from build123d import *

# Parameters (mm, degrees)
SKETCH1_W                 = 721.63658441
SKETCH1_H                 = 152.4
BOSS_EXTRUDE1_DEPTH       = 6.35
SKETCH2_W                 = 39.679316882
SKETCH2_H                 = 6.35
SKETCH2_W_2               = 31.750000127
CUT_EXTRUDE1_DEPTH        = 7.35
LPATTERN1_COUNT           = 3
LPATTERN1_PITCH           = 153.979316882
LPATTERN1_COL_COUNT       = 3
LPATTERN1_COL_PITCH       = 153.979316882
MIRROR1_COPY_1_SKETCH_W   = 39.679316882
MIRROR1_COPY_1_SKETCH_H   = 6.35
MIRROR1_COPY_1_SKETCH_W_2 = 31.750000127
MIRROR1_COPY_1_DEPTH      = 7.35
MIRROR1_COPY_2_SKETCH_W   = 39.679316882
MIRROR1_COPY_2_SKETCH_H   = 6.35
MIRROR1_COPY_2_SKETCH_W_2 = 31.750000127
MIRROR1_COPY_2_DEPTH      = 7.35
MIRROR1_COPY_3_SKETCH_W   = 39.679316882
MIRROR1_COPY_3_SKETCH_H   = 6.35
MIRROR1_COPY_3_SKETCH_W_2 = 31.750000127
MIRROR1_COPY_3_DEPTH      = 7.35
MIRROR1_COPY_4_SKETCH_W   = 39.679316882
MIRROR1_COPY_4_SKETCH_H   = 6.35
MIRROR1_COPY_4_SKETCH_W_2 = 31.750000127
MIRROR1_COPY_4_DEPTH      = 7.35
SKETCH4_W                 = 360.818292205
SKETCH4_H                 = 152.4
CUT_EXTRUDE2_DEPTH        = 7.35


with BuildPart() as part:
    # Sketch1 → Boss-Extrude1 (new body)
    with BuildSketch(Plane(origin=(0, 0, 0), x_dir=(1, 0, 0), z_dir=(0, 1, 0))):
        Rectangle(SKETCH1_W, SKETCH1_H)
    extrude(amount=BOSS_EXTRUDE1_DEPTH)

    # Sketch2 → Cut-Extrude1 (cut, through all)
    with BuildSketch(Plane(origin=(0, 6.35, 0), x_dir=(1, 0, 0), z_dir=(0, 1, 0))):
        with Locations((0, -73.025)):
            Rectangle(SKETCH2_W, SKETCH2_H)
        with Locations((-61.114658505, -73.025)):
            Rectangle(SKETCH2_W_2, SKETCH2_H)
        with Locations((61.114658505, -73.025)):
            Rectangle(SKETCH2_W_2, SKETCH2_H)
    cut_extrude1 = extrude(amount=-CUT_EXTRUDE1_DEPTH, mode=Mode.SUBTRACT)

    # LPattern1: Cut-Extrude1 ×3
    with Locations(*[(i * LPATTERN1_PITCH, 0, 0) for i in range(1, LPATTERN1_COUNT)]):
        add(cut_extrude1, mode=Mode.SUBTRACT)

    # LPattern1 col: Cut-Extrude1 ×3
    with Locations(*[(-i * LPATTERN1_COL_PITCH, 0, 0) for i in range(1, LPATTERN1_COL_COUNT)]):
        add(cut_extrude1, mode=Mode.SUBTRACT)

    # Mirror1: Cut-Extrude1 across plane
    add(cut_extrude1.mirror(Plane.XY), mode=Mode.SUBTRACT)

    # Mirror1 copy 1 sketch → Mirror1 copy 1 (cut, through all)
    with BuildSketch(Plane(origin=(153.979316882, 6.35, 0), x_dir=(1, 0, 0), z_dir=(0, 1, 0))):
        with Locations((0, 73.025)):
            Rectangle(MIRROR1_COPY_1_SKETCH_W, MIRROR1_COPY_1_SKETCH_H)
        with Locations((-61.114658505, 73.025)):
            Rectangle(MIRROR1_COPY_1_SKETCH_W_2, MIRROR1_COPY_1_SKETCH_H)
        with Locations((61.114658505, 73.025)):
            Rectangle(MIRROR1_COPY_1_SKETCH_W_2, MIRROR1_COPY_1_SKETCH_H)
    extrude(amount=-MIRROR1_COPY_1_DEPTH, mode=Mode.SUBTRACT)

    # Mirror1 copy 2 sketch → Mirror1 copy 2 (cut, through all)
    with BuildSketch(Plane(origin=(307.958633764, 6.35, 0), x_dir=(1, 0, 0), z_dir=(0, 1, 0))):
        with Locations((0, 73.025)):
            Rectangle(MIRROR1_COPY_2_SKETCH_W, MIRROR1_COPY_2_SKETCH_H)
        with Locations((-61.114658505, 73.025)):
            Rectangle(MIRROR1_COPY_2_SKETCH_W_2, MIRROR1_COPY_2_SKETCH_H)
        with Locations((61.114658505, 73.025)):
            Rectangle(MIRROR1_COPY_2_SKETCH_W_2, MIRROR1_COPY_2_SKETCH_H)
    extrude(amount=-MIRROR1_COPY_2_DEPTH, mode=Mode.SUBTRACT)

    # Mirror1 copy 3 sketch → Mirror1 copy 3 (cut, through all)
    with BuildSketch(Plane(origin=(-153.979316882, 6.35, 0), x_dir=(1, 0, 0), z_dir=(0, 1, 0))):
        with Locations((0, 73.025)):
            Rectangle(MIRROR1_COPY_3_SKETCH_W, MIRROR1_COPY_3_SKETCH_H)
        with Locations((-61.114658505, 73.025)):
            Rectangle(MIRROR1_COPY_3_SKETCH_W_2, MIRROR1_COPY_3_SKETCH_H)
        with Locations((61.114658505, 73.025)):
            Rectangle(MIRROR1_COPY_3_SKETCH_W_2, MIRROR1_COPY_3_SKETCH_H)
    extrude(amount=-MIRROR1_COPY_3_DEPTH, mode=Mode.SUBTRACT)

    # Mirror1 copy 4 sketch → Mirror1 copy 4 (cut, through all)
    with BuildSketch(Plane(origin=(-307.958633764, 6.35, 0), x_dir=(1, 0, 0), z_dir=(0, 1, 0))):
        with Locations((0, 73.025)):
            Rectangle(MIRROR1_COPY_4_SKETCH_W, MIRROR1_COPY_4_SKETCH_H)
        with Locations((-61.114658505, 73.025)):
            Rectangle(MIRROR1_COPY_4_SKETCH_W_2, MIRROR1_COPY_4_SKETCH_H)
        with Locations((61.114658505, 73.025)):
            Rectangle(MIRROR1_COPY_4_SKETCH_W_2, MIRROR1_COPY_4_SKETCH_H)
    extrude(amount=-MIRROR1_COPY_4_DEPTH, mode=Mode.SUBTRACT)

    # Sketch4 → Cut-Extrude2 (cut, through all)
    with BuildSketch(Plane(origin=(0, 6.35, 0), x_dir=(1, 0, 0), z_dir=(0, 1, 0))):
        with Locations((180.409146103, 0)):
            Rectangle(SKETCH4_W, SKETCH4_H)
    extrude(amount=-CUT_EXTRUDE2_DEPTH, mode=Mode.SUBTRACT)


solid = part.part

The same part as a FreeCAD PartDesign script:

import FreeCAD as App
import Part
import Sketcher
from FreeCAD import Vector
Q = App.Units.Quantity

doc = App.newDocument("Part")
body = doc.addObject("PartDesign::Body", "Body")

# Sketch on XZ plane
sketch1 = body.newObject("Sketcher::SketchObject", "Sketch")
sketch1.AttachmentSupport = (doc.getObject("XZ_Plane"), [""])
sketch1.MapMode = "FlatFace"
sketch1.addGeometry([
    Part.LineSegment(Vector(-360.818292, -76.2, 0), Vector(-360.818292, 76.2, 0)),
    Part.LineSegment(Vector(-360.818292, 76.2, 0), Vector(360.818292, 76.2, 0)),
    Part.LineSegment(Vector(360.818292, 76.2, 0), Vector(360.818292, -76.2, 0)),
    Part.LineSegment(Vector(360.818292, -76.2, 0), Vector(-360.818292, -76.2, 0)),
], False)
sketch1.addConstraint([
    Sketcher.Constraint("Coincident", 0, 2, 1, 1),
    Sketcher.Constraint("Coincident", 1, 2, 2, 1),
    Sketcher.Constraint("Coincident", 2, 2, 3, 1),
    Sketcher.Constraint("Coincident", 3, 2, 0, 1),
    Sketcher.Constraint("Vertical", 0),
    Sketcher.Constraint("Horizontal", 1),
    Sketcher.Constraint("Vertical", 2),
    Sketcher.Constraint("Horizontal", 3),
    Sketcher.Constraint("Symmetric", 0, 2, 2, 2, -1, 1),
    Sketcher.Constraint("DistanceY", 0, 1, 0, 2, Q("6 in")),
    Sketcher.Constraint("DistanceX", 1, 1, 1, 2, 721.636584),
])
pad1 = body.newObject("PartDesign::Pad", "Pad")
pad1.Profile = sketch1
pad1.Length = Q("0.25 in")
pad1.Reversed = True

# Sketch on XZ plane
sketch2 = body.newObject("Sketcher::SketchObject", "Sketch001")
sketch2.AttachmentSupport = (doc.getObject("XZ_Plane"), [""])
sketch2.MapMode = "FlatFace"
sketch2.AttachmentOffset = App.Placement(Vector(0, 0, -0.25 * 25.4), App.Rotation())
sketch2.addGeometry([
    Part.LineSegment(Vector(-19.839658, 69.85, 0), Vector(-19.839658, 76.2, 0)),  # 0
    Part.LineSegment(Vector(-19.839658, 76.2, 0), Vector(19.839658, 76.2, 0)),  # 1
    Part.LineSegment(Vector(19.839658, 76.2, 0), Vector(19.839658, 69.85, 0)),  # 2
    Part.LineSegment(Vector(19.839658, 69.85, 0), Vector(-19.839658, 69.85, 0)),  # 3
    Part.LineSegment(Vector(-76.989659, 69.85, 0), Vector(-76.989659, 76.2, 0)),  # 4
    Part.LineSegment(Vector(-76.989659, 76.2, 0), Vector(-45.239658, 76.2, 0)),  # 5
    Part.LineSegment(Vector(-45.239658, 76.2, 0), Vector(-45.239658, 69.85, 0)),  # 6
    Part.LineSegment(Vector(-45.239658, 69.85, 0), Vector(-76.989659, 69.85, 0)),  # 7
    Part.LineSegment(Vector(45.239658, 69.85, 0), Vector(45.239658, 76.2, 0)),  # 8
    Part.LineSegment(Vector(45.239658, 76.2, 0), Vector(76.989659, 76.2, 0)),  # 9
    Part.LineSegment(Vector(76.989659, 76.2, 0), Vector(76.989659, 69.85, 0)),  # 10
    Part.LineSegment(Vector(76.989659, 69.85, 0), Vector(45.239658, 69.85, 0)),  # 11
], False)
sketch2.addConstraint([
    Sketcher.Constraint("Coincident", 0, 2, 1, 1),
    Sketcher.Constraint("Coincident", 1, 2, 2, 1),
    Sketcher.Constraint("Coincident", 2, 2, 3, 1),
    Sketcher.Constraint("Coincident", 3, 2, 0, 1),
    Sketcher.Constraint("Coincident", 4, 2, 5, 1),
    Sketcher.Constraint("Coincident", 5, 2, 6, 1),
    Sketcher.Constraint("Coincident", 6, 2, 7, 1),
    Sketcher.Constraint("Coincident", 7, 2, 4, 1),
    Sketcher.Constraint("Coincident", 8, 2, 9, 1),
    Sketcher.Constraint("Coincident", 9, 2, 10, 1),
    Sketcher.Constraint("Coincident", 10, 2, 11, 1),
    Sketcher.Constraint("Coincident", 11, 2, 8, 1),
    Sketcher.Constraint("Vertical", 0),
    Sketcher.Constraint("Horizontal", 1),
    Sketcher.Constraint("Vertical", 2),
    Sketcher.Constraint("Horizontal", 3),
    Sketcher.Constraint("Vertical", 4),
    Sketcher.Constraint("Horizontal", 5),
    Sketcher.Constraint("Vertical", 6),
    Sketcher.Constraint("Horizontal", 7),
    Sketcher.Constraint("Vertical", 8),
    Sketcher.Constraint("Horizontal", 9),
    Sketcher.Constraint("Vertical", 10),
    Sketcher.Constraint("Horizontal", 11),
    Sketcher.Constraint("Symmetric", 5, 2, 8, 2, -2),
    Sketcher.Constraint("Symmetric", 7, 2, 10, 2, -2),
    Sketcher.Constraint("Horizontal", 1, 2, 4, 2),
    Sketcher.Constraint("Horizontal", 3, 2, 6, 2),
    Sketcher.Constraint("DistanceY", -1, 1, 0, 2, Q("3 in")),
    Sketcher.Constraint("DistanceX", 5, 2, 0, 2, Q("1 in")),
    Sketcher.Constraint("DistanceX", 1, 2, 8, 2, Q("1 in")),
    Sketcher.Constraint("DistanceX", 5, 1, 5, 2, Q("1.25 in")),
    Sketcher.Constraint("DistanceY", 0, 1, 0, 2, Q("0.25 in")),
    Sketcher.Constraint("DistanceX", 1, 1, 1, 2, 39.679317),
])
pocket1 = body.newObject("PartDesign::Pocket", "Pocket")
pocket1.Profile = sketch2
pocket1.Type = "ThroughAll"
pocket1.Reversed = True
doc.recompute()

linearpattern = body.newObject("PartDesign::LinearPattern", "LinearPattern")
linearpattern.Originals = [pocket1]
linearpattern.Direction = (doc.getObject("X_Axis"), [""])
linearpattern.Mode = "offset"
linearpattern.Offset = 153.979317
linearpattern.Occurrences = 3
body.Tip = linearpattern
doc.recompute()

linearpattern2 = body.newObject("PartDesign::LinearPattern", "LinearPattern001")
linearpattern2.Originals = [pocket1]
linearpattern2.Direction = (doc.getObject("X_Axis"), [""])
linearpattern2.Mode = "offset"
linearpattern2.Offset = 153.979317
linearpattern2.Occurrences = 3
linearpattern2.Reversed = True
body.Tip = linearpattern2
doc.recompute()

mirrored = body.newObject("PartDesign::Mirrored", "Mirrored")
mirrored.Originals = [pocket1]
mirrored.MirrorPlane = (doc.getObject("XY_Plane"), [""])
body.Tip = mirrored

# Sketch on XZ plane
sketch3 = body.newObject("Sketcher::SketchObject", "Sketch002")
sketch3.AttachmentSupport = (doc.getObject("XZ_Plane"), [""])
sketch3.MapMode = "FlatFace"
sketch3.AttachmentOffset = App.Placement(Vector(0, 0, -0.25 * 25.4), App.Rotation())
sketch3.addGeometry([
    Part.LineSegment(Vector(134.139658, -76.2, 0), Vector(134.139658, -69.85, 0)),  # 0
    Part.LineSegment(Vector(134.139658, -69.85, 0), Vector(173.818975, -69.85, 0)),  # 1
    Part.LineSegment(Vector(173.818975, -69.85, 0), Vector(173.818975, -76.2, 0)),  # 2
    Part.LineSegment(Vector(173.818975, -76.2, 0), Vector(134.139658, -76.2, 0)),  # 3
    Part.LineSegment(Vector(76.989658, -76.2, 0), Vector(76.989658, -69.85, 0)),  # 4
    Part.LineSegment(Vector(76.989658, -69.85, 0), Vector(108.739658, -69.85, 0)),  # 5
    Part.LineSegment(Vector(108.739658, -69.85, 0), Vector(108.739658, -76.2, 0)),  # 6
    Part.LineSegment(Vector(108.739658, -76.2, 0), Vector(76.989658, -76.2, 0)),  # 7
    Part.LineSegment(Vector(199.218975, -76.2, 0), Vector(199.218975, -69.85, 0)),  # 8
    Part.LineSegment(Vector(199.218975, -69.85, 0), Vector(230.968975, -69.85, 0)),  # 9
    Part.LineSegment(Vector(230.968975, -69.85, 0), Vector(230.968975, -76.2, 0)),  # 10
    Part.LineSegment(Vector(230.968975, -76.2, 0), Vector(199.218975, -76.2, 0)),  # 11
], False)
sketch3.addConstraint([
    Sketcher.Constraint("Coincident", 0, 2, 1, 1),
    Sketcher.Constraint("Coincident", 1, 2, 2, 1),
    Sketcher.Constraint("Coincident", 2, 2, 3, 1),
    Sketcher.Constraint("Coincident", 3, 2, 0, 1),
    Sketcher.Constraint("Coincident", 4, 2, 5, 1),
    Sketcher.Constraint("Coincident", 5, 2, 6, 1),
    Sketcher.Constraint("Coincident", 6, 2, 7, 1),
    Sketcher.Constraint("Coincident", 7, 2, 4, 1),
    Sketcher.Constraint("Coincident", 8, 2, 9, 1),
    Sketcher.Constraint("Coincident", 9, 2, 10, 1),
    Sketcher.Constraint("Coincident", 10, 2, 11, 1),
    Sketcher.Constraint("Coincident", 11, 2, 8, 1),
    Sketcher.Constraint("Vertical", 0),
    Sketcher.Constraint("Horizontal", 1),
    Sketcher.Constraint("Vertical", 2),
    Sketcher.Constraint("Horizontal", 3),
    Sketcher.Constraint("Vertical", 4),
    Sketcher.Constraint("Horizontal", 5),
    Sketcher.Constraint("Vertical", 6),
    Sketcher.Constraint("Horizontal", 7),
    Sketcher.Constraint("Vertical", 8),
    Sketcher.Constraint("Horizontal", 9),
    Sketcher.Constraint("Vertical", 10),
    Sketcher.Constraint("Horizontal", 11),
    Sketcher.Constraint("Horizontal", 1, 2, 4, 2),
    Sketcher.Constraint("Horizontal", 3, 2, 6, 2),
    Sketcher.Constraint("Horizontal", 5, 2, 8, 2),
    Sketcher.Constraint("Horizontal", 7, 2, 10, 2),
    Sketcher.Constraint("Equal", 7, 9),
    Sketcher.Constraint("DistanceY", 2, 2, -1, 1, Q("3 in")),
    Sketcher.Constraint("DistanceX", 5, 2, 0, 2, Q("1 in")),
    Sketcher.Constraint("DistanceX", 1, 2, 8, 2, Q("1 in")),
    Sketcher.Constraint("DistanceX", 5, 1, 5, 2, Q("1.25 in")),
    Sketcher.Constraint("DistanceY", 0, 1, 0, 2, Q("0.25 in")),
    Sketcher.Constraint("DistanceX", 1, 1, 1, 2, 39.679317),
    Sketcher.Constraint("DistanceX", -1, 1, 0, 2, 134.139658),
])
pocket2 = body.newObject("PartDesign::Pocket", "Pocket001")
pocket2.Profile = sketch3
pocket2.Type = "ThroughAll"
pocket2.Reversed = True

# Sketch on XZ plane
sketch4 = body.newObject("Sketcher::SketchObject", "Sketch003")
sketch4.AttachmentSupport = (doc.getObject("XZ_Plane"), [""])
sketch4.MapMode = "FlatFace"
sketch4.AttachmentOffset = App.Placement(Vector(0, 0, -0.25 * 25.4), App.Rotation())
sketch4.addGeometry([
    Part.LineSegment(Vector(288.118975, -76.2, 0), Vector(288.118975, -69.85, 0)),  # 0
    Part.LineSegment(Vector(288.118975, -69.85, 0), Vector(327.798292, -69.85, 0)),  # 1
    Part.LineSegment(Vector(327.798292, -69.85, 0), Vector(327.798292, -76.2, 0)),  # 2
    Part.LineSegment(Vector(327.798292, -76.2, 0), Vector(288.118975, -76.2, 0)),  # 3
    Part.LineSegment(Vector(230.968975, -76.2, 0), Vector(230.968975, -69.85, 0)),  # 4
    Part.LineSegment(Vector(230.968975, -69.85, 0), Vector(262.718975, -69.85, 0)),  # 5
    Part.LineSegment(Vector(262.718975, -69.85, 0), Vector(262.718975, -76.2, 0)),  # 6
    Part.LineSegment(Vector(262.718975, -76.2, 0), Vector(230.968975, -76.2, 0)),  # 7
    Part.LineSegment(Vector(353.198292, -76.2, 0), Vector(353.198292, -69.85, 0)),  # 8
    Part.LineSegment(Vector(353.198292, -69.85, 0), Vector(384.948292, -69.85, 0)),  # 9
    Part.LineSegment(Vector(384.948292, -69.85, 0), Vector(384.948292, -76.2, 0)),  # 10
    Part.LineSegment(Vector(384.948292, -76.2, 0), Vector(353.198292, -76.2, 0)),  # 11
], False)
sketch4.addConstraint([
    Sketcher.Constraint("Coincident", 0, 2, 1, 1),
    Sketcher.Constraint("Coincident", 1, 2, 2, 1),
    Sketcher.Constraint("Coincident", 2, 2, 3, 1),
    Sketcher.Constraint("Coincident", 3, 2, 0, 1),
    Sketcher.Constraint("Coincident", 4, 2, 5, 1),
    Sketcher.Constraint("Coincident", 5, 2, 6, 1),
    Sketcher.Constraint("Coincident", 6, 2, 7, 1),
    Sketcher.Constraint("Coincident", 7, 2, 4, 1),
    Sketcher.Constraint("Coincident", 8, 2, 9, 1),
    Sketcher.Constraint("Coincident", 9, 2, 10, 1),
    Sketcher.Constraint("Coincident", 10, 2, 11, 1),
    Sketcher.Constraint("Coincident", 11, 2, 8, 1),
    Sketcher.Constraint("Vertical", 0),
    Sketcher.Constraint("Horizontal", 1),
    Sketcher.Constraint("Vertical", 2),
    Sketcher.Constraint("Horizontal", 3),
    Sketcher.Constraint("Vertical", 4),
    Sketcher.Constraint("Horizontal", 5),
    Sketcher.Constraint("Vertical", 6),
    Sketcher.Constraint("Horizontal", 7),
    Sketcher.Constraint("Vertical", 8),
    Sketcher.Constraint("Horizontal", 9),
    Sketcher.Constraint("Vertical", 10),
    Sketcher.Constraint("Horizontal", 11),
    Sketcher.Constraint("Horizontal", 1, 2, 4, 2),
    Sketcher.Constraint("Horizontal", 3, 2, 6, 2),
    Sketcher.Constraint("Horizontal", 5, 2, 8, 2),
    Sketcher.Constraint("Horizontal", 7, 2, 10, 2),
    Sketcher.Constraint("Equal", 7, 9),
    Sketcher.Constraint("DistanceY", 2, 2, -1, 1, Q("3 in")),
    Sketcher.Constraint("DistanceX", 5, 2, 0, 2, Q("1 in")),
    Sketcher.Constraint("DistanceX", 1, 2, 8, 2, Q("1 in")),
    Sketcher.Constraint("DistanceX", 5, 1, 5, 2, Q("1.25 in")),
    Sketcher.Constraint("DistanceY", 0, 1, 0, 2, Q("0.25 in")),
    Sketcher.Constraint("DistanceX", 1, 1, 1, 2, 39.679317),
    Sketcher.Constraint("DistanceX", -1, 1, 0, 2, 288.118975),
])
pocket3 = body.newObject("PartDesign::Pocket", "Pocket002")
pocket3.Profile = sketch4
pocket3.Type = "ThroughAll"
pocket3.Reversed = True

# Sketch on XZ plane
sketch5 = body.newObject("Sketcher::SketchObject", "Sketch004")
sketch5.AttachmentSupport = (doc.getObject("XZ_Plane"), [""])
sketch5.MapMode = "FlatFace"
sketch5.AttachmentOffset = App.Placement(Vector(0, 0, -0.25 * 25.4), App.Rotation())
sketch5.addGeometry([
    Part.LineSegment(Vector(-173.818975, -76.2, 0), Vector(-173.818975, -69.85, 0)),  # 0
    Part.LineSegment(Vector(-173.818975, -69.85, 0), Vector(-134.139658, -69.85, 0)),  # 1
    Part.LineSegment(Vector(-134.139658, -69.85, 0), Vector(-134.139658, -76.2, 0)),  # 2
    Part.LineSegment(Vector(-134.139658, -76.2, 0), Vector(-173.818975, -76.2, 0)),  # 3
    Part.LineSegment(Vector(-230.968975, -76.2, 0), Vector(-230.968975, -69.85, 0)),  # 4
    Part.LineSegment(Vector(-230.968975, -69.85, 0), Vector(-199.218975, -69.85, 0)),  # 5
    Part.LineSegment(Vector(-199.218975, -69.85, 0), Vector(-199.218975, -76.2, 0)),  # 6
    Part.LineSegment(Vector(-199.218975, -76.2, 0), Vector(-230.968975, -76.2, 0)),  # 7
    Part.LineSegment(Vector(-108.739658, -76.2, 0), Vector(-108.739658, -69.85, 0)),  # 8
    Part.LineSegment(Vector(-108.739658, -69.85, 0), Vector(-76.989658, -69.85, 0)),  # 9
    Part.LineSegment(Vector(-76.989658, -69.85, 0), Vector(-76.989658, -76.2, 0)),  # 10
    Part.LineSegment(Vector(-76.989658, -76.2, 0), Vector(-108.739658, -76.2, 0)),  # 11
], False)
sketch5.addConstraint([
    Sketcher.Constraint("Coincident", 0, 2, 1, 1),
    Sketcher.Constraint("Coincident", 1, 2, 2, 1),
    Sketcher.Constraint("Coincident", 2, 2, 3, 1),
    Sketcher.Constraint("Coincident", 3, 2, 0, 1),
    Sketcher.Constraint("Coincident", 4, 2, 5, 1),
    Sketcher.Constraint("Coincident", 5, 2, 6, 1),
    Sketcher.Constraint("Coincident", 6, 2, 7, 1),
    Sketcher.Constraint("Coincident", 7, 2, 4, 1),
    Sketcher.Constraint("Coincident", 8, 2, 9, 1),
    Sketcher.Constraint("Coincident", 9, 2, 10, 1),
    Sketcher.Constraint("Coincident", 10, 2, 11, 1),
    Sketcher.Constraint("Coincident", 11, 2, 8, 1),
    Sketcher.Constraint("Vertical", 0),
    Sketcher.Constraint("Horizontal", 1),
    Sketcher.Constraint("Vertical", 2),
    Sketcher.Constraint("Horizontal", 3),
    Sketcher.Constraint("Vertical", 4),
    Sketcher.Constraint("Horizontal", 5),
    Sketcher.Constraint("Vertical", 6),
    Sketcher.Constraint("Horizontal", 7),
    Sketcher.Constraint("Vertical", 8),
    Sketcher.Constraint("Horizontal", 9),
    Sketcher.Constraint("Vertical", 10),
    Sketcher.Constraint("Horizontal", 11),
    Sketcher.Constraint("Horizontal", 1, 2, 4, 2),
    Sketcher.Constraint("Horizontal", 3, 2, 6, 2),
    Sketcher.Constraint("Horizontal", 5, 2, 8, 2),
    Sketcher.Constraint("Horizontal", 7, 2, 10, 2),
    Sketcher.Constraint("Equal", 7, 9),
    Sketcher.Constraint("DistanceY", 2, 2, -1, 1, Q("3 in")),
    Sketcher.Constraint("DistanceX", 5, 2, 0, 2, Q("1 in")),
    Sketcher.Constraint("DistanceX", 1, 2, 8, 2, Q("1 in")),
    Sketcher.Constraint("DistanceX", 5, 1, 5, 2, Q("1.25 in")),
    Sketcher.Constraint("DistanceY", 0, 1, 0, 2, Q("0.25 in")),
    Sketcher.Constraint("DistanceX", 1, 1, 1, 2, 39.679317),
    Sketcher.Constraint("DistanceX", 1, 2, -1, 1, 134.139658),
])
pocket4 = body.newObject("PartDesign::Pocket", "Pocket003")
pocket4.Profile = sketch5
pocket4.Type = "ThroughAll"
pocket4.Reversed = True

# Sketch on XZ plane
sketch6 = body.newObject("Sketcher::SketchObject", "Sketch005")
sketch6.AttachmentSupport = (doc.getObject("XZ_Plane"), [""])
sketch6.MapMode = "FlatFace"
sketch6.AttachmentOffset = App.Placement(Vector(0, 0, -0.25 * 25.4), App.Rotation())
sketch6.addGeometry([
    Part.LineSegment(Vector(-327.798292, -76.2, 0), Vector(-327.798292, -69.85, 0)),  # 0
    Part.LineSegment(Vector(-327.798292, -69.85, 0), Vector(-288.118975, -69.85, 0)),  # 1
    Part.LineSegment(Vector(-288.118975, -69.85, 0), Vector(-288.118975, -76.2, 0)),  # 2
    Part.LineSegment(Vector(-288.118975, -76.2, 0), Vector(-327.798292, -76.2, 0)),  # 3
    Part.LineSegment(Vector(-384.948292, -76.2, 0), Vector(-384.948292, -69.85, 0)),  # 4
    Part.LineSegment(Vector(-384.948292, -69.85, 0), Vector(-353.198292, -69.85, 0)),  # 5
    Part.LineSegment(Vector(-353.198292, -69.85, 0), Vector(-353.198292, -76.2, 0)),  # 6
    Part.LineSegment(Vector(-353.198292, -76.2, 0), Vector(-384.948292, -76.2, 0)),  # 7
    Part.LineSegment(Vector(-262.718975, -76.2, 0), Vector(-262.718975, -69.85, 0)),  # 8
    Part.LineSegment(Vector(-262.718975, -69.85, 0), Vector(-230.968975, -69.85, 0)),  # 9
    Part.LineSegment(Vector(-230.968975, -69.85, 0), Vector(-230.968975, -76.2, 0)),  # 10
    Part.LineSegment(Vector(-230.968975, -76.2, 0), Vector(-262.718975, -76.2, 0)),  # 11
], False)
sketch6.addConstraint([
    Sketcher.Constraint("Coincident", 0, 2, 1, 1),
    Sketcher.Constraint("Coincident", 1, 2, 2, 1),
    Sketcher.Constraint("Coincident", 2, 2, 3, 1),
    Sketcher.Constraint("Coincident", 3, 2, 0, 1),
    Sketcher.Constraint("Coincident", 4, 2, 5, 1),
    Sketcher.Constraint("Coincident", 5, 2, 6, 1),
    Sketcher.Constraint("Coincident", 6, 2, 7, 1),
    Sketcher.Constraint("Coincident", 7, 2, 4, 1),
    Sketcher.Constraint("Coincident", 8, 2, 9, 1),
    Sketcher.Constraint("Coincident", 9, 2, 10, 1),
    Sketcher.Constraint("Coincident", 10, 2, 11, 1),
    Sketcher.Constraint("Coincident", 11, 2, 8, 1),
    Sketcher.Constraint("Vertical", 0),
    Sketcher.Constraint("Horizontal", 1),
    Sketcher.Constraint("Vertical", 2),
    Sketcher.Constraint("Horizontal", 3),
    Sketcher.Constraint("Vertical", 4),
    Sketcher.Constraint("Horizontal", 5),
    Sketcher.Constraint("Vertical", 6),
    Sketcher.Constraint("Horizontal", 7),
    Sketcher.Constraint("Vertical", 8),
    Sketcher.Constraint("Horizontal", 9),
    Sketcher.Constraint("Vertical", 10),
    Sketcher.Constraint("Horizontal", 11),
    Sketcher.Constraint("Horizontal", 1, 2, 4, 2),
    Sketcher.Constraint("Horizontal", 3, 2, 6, 2),
    Sketcher.Constraint("Horizontal", 5, 2, 8, 2),
    Sketcher.Constraint("Horizontal", 7, 2, 10, 2),
    Sketcher.Constraint("Equal", 7, 9),
    Sketcher.Constraint("DistanceY", 2, 2, -1, 1, Q("3 in")),
    Sketcher.Constraint("DistanceX", 5, 2, 0, 2, Q("1 in")),
    Sketcher.Constraint("DistanceX", 1, 2, 8, 2, Q("1 in")),
    Sketcher.Constraint("DistanceX", 5, 1, 5, 2, Q("1.25 in")),
    Sketcher.Constraint("DistanceY", 0, 1, 0, 2, Q("0.25 in")),
    Sketcher.Constraint("DistanceX", 1, 1, 1, 2, 39.679317),
    Sketcher.Constraint("DistanceX", 0, 2, -1, 1, 327.798292),
])
pocket5 = body.newObject("PartDesign::Pocket", "Pocket004")
pocket5.Profile = sketch6
pocket5.Type = "ThroughAll"
pocket5.Reversed = True

# Sketch on XZ plane
sketch7 = body.newObject("Sketcher::SketchObject", "Sketch006")
sketch7.AttachmentSupport = (doc.getObject("XZ_Plane"), [""])
sketch7.MapMode = "FlatFace"
sketch7.AttachmentOffset = App.Placement(Vector(0, 0, -0.25 * 25.4), App.Rotation())
sketch7.addGeometry([
    Part.LineSegment(Vector(0, -76.2, 0), Vector(0, 76.2, 0)),
    Part.LineSegment(Vector(0, 76.2, 0), Vector(360.818292, 76.2, 0)),
    Part.LineSegment(Vector(360.818292, 76.2, 0), Vector(360.818292, -76.2, 0)),
    Part.LineSegment(Vector(360.818292, -76.2, 0), Vector(0, -76.2, 0)),
], False)
sketch7.addConstraint([
    Sketcher.Constraint("Coincident", 0, 2, 1, 1),
    Sketcher.Constraint("Coincident", 1, 2, 2, 1),
    Sketcher.Constraint("Coincident", 2, 2, 3, 1),
    Sketcher.Constraint("Coincident", 3, 2, 0, 1),
    Sketcher.Constraint("Vertical", 0),
    Sketcher.Constraint("Horizontal", 1),
    Sketcher.Constraint("Vertical", 2),
    Sketcher.Constraint("Horizontal", 3),
    Sketcher.Constraint("Symmetric", 0, 2, 3, 2, -1, 1),
    Sketcher.Constraint("DistanceY", 0, 1, 0, 2, Q("6 in")),
    Sketcher.Constraint("DistanceX", 1, 1, 1, 2, 360.818292),
])
pocket6 = body.newObject("PartDesign::Pocket", "Pocket005")
pocket6.Profile = sketch7
pocket6.Type = "ThroughAll"
pocket6.Reversed = True

doc.recompute()
